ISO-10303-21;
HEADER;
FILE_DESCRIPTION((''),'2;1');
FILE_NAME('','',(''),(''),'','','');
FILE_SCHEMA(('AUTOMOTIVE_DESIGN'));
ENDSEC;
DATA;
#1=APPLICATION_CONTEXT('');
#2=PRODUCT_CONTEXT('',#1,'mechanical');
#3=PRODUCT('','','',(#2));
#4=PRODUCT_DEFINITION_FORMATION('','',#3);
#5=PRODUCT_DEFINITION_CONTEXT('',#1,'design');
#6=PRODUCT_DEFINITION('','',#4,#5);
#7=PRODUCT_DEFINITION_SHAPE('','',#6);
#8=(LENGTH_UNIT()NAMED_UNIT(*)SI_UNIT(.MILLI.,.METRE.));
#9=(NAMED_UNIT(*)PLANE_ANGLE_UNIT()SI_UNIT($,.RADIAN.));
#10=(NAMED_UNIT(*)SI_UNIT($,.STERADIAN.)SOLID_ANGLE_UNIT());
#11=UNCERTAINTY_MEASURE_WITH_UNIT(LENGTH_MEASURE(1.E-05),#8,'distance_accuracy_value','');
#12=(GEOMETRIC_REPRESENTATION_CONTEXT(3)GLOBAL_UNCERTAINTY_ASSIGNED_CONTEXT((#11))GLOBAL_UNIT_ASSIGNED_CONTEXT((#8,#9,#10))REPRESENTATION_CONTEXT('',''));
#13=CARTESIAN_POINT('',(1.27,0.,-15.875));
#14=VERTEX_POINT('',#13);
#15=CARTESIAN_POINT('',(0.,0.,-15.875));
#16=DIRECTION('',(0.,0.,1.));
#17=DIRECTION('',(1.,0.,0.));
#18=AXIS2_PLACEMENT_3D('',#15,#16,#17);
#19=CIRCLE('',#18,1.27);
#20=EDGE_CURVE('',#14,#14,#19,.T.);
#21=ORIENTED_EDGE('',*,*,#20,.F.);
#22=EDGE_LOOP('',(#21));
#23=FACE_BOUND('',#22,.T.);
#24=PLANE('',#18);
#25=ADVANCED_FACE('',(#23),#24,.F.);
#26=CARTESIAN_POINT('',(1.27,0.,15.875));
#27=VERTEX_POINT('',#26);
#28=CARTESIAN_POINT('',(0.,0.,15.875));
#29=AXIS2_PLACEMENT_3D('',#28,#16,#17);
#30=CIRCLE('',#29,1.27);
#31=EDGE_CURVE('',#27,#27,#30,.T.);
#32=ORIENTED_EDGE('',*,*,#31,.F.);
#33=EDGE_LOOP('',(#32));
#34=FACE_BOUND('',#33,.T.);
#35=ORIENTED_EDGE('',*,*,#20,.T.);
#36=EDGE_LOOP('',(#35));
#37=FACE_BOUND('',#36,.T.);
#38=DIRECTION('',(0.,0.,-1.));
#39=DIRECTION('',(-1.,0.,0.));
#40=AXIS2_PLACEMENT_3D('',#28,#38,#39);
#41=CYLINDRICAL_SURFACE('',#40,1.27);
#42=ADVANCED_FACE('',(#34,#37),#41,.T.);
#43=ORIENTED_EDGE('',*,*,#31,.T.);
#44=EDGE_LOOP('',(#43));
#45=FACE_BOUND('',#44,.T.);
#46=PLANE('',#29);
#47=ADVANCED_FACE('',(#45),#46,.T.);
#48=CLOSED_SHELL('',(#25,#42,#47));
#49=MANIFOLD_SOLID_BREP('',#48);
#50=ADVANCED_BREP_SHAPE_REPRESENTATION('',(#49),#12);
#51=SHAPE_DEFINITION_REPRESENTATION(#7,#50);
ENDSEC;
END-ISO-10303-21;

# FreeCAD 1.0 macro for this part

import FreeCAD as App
import Part
import Sketcher
from FreeCAD import Vector
Q = App.Units.Quantity

doc = App.newDocument("Part")
body = doc.addObject("PartDesign::Body", "Body")

# Sketch on XY plane
sketch1 = body.newObject("Sketcher::SketchObject", "Sketch")
sketch1.AttachmentSupport = (doc.getObject("XY_Plane"), [""])
sketch1.MapMode = "FlatFace"
sketch1.addGeometry(Part.Circle(Vector(0, 0, 0), Vector(0, 0, 1), 1.3), False)
sketch1.addConstraint([
    Sketcher.Constraint("Coincident", 0, 3, -1, 1),
    Sketcher.Constraint("Diameter", 0, Q("0.1 in")),
])
pad1 = body.newObject("PartDesign::Pad", "Pad")
pad1.Profile = sketch1
pad1.Length = Q("1.25 in")
pad1.Midplane = True

doc.recompute()
